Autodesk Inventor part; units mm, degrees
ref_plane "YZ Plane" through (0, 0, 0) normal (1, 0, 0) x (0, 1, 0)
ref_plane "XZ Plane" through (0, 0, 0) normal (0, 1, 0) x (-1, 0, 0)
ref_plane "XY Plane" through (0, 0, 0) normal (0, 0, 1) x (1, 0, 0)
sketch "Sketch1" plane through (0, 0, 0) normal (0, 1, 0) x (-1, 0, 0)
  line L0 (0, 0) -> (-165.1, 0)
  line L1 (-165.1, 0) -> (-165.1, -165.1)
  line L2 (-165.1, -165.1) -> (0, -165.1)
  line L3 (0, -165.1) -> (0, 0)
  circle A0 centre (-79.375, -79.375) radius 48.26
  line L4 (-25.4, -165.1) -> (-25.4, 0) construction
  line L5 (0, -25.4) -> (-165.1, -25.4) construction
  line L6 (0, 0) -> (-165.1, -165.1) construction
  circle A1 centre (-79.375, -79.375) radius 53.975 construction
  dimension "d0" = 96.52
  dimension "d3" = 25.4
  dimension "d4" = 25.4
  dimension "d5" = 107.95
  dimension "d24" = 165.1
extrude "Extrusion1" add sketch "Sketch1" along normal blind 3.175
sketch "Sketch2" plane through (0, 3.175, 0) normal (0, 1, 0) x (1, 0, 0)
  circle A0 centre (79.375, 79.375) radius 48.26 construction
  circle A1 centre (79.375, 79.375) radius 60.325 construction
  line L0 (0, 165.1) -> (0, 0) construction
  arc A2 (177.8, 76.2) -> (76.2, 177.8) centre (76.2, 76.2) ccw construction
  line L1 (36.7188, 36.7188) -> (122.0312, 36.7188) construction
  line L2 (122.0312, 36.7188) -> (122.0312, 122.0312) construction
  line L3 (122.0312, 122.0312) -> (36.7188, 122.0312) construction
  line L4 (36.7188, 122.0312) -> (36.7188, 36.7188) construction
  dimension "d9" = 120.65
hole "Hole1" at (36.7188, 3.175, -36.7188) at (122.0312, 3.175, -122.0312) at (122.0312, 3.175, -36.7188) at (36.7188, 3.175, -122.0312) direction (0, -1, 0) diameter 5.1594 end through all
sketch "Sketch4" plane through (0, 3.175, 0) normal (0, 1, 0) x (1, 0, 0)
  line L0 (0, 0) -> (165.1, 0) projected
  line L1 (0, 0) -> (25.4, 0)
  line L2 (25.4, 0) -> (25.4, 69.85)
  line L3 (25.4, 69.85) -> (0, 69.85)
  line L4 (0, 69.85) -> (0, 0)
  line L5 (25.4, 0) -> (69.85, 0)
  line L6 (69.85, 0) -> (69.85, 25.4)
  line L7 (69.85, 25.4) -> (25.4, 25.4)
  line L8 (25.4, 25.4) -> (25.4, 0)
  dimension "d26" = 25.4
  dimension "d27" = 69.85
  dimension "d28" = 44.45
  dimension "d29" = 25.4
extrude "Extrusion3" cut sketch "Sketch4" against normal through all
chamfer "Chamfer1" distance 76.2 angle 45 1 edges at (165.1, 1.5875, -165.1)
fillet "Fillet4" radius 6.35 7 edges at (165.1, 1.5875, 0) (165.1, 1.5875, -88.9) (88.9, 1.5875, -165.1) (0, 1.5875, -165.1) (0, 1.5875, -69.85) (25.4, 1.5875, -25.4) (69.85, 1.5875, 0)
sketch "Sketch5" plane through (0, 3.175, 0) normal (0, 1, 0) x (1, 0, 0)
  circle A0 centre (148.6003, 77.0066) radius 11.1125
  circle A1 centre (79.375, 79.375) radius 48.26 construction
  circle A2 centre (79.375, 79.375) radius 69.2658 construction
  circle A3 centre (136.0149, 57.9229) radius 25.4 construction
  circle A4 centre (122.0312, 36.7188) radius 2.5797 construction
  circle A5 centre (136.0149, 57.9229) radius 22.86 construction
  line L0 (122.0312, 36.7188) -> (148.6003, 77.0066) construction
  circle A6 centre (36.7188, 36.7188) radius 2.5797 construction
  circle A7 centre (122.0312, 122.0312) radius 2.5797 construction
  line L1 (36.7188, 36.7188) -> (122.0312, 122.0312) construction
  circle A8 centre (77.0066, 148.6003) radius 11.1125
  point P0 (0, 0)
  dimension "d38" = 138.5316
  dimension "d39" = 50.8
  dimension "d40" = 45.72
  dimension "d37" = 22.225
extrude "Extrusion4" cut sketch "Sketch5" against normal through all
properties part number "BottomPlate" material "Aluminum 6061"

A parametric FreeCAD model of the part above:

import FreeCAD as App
import Part
import Sketcher
from FreeCAD import Vector
Q = App.Units.Quantity


def edges_at(feature, points):
    """Names of the edges that pass closest to the given points."""
    edges = feature.Shape.Edges
    near = lambda p: min(range(len(edges)), key=lambda i: edges[i].distToShape(Part.Vertex(*p))[0])
    return sorted({f"Edge{near(p) + 1}" for p in points})


def add_polygon(sketch, points):
    """Adds a closed chain of lines whose ends are joined by coincident constraints."""
    first, n = sketch.GeometryCount, len(points)
    for a, b in zip(points, points[1:] + points[:1]):
        sketch.addGeometry(Part.LineSegment(App.Vector(*a, 0), App.Vector(*b, 0)), False)
    for i in range(n):
        sketch.addConstraint(Sketcher.Constraint("Coincident", first + i, 2, first + (i + 1) % n, 1))

doc = App.newDocument("Part")
body = doc.addObject("PartDesign::Body", "Body")

# Sketch on XZ plane
sketch1 = body.newObject("Sketcher::SketchObject", "Sketch")
sketch1.AttachmentSupport = (doc.getObject("XZ_Plane"), [""])
sketch1.MapMode = "FlatFace"
add_polygon(sketch1, [(0, -165), (0, 0), (165, 0), (165, -165)])  # lines 0-3
sketch1.addGeometry(Part.Circle(Vector(79, -79, 0), Vector(0, 0, 1), 48), False)  # 4
sketch1.addConstraint(Sketcher.Constraint("Vertical", 0))
sketch1.addConstraint(Sketcher.Constraint("Horizontal", 1))
sketch1.addConstraint(Sketcher.Constraint("Vertical", 2))
sketch1.addConstraint(Sketcher.Constraint("Horizontal", 3))
sketch1.addConstraint(Sketcher.Constraint("Coincident", 0, 2, -1, 1))
sketch1.addConstraint(Sketcher.Constraint("Equal", 3, 0))
sketch1.addConstraint(Sketcher.Constraint("Diameter", 4, Q("3.8 in")))
sketch1.addConstraint(Sketcher.Constraint("DistanceX", 1, 1, 1, 2, Q("6.5 in")))
sketch1.addConstraint(Sketcher.Constraint("DistanceX", -1, 1, 4, 3, Q("3.125 in")))
sketch1.addConstraint(Sketcher.Constraint("DistanceY", 4, 3, -1, 1, Q("3.125 in")))
pad1 = body.newObject("PartDesign::Pad", "Pad")
pad1.Profile = sketch1
pad1.Length = Q("0.125 in")
pad1.Reversed = True

# Sketch on XZ plane
sketch2 = body.newObject("Sketcher::SketchObject", "Sketch001")
sketch2.AttachmentSupport = (doc.getObject("XZ_Plane"), [""])
sketch2.MapMode = "FlatFace"
sketch2.AttachmentOffset = App.Placement(Vector(0, 0, -0.125 * 25.4), App.Rotation())
sketch2.addGeometry(Part.Circle(Vector(36.7, -36.7, 0), Vector(0, 0, 1), 2.6), False)
sketch2.addGeometry(Part.Circle(Vector(122, -122, 0), Vector(0, 0, 1), 2.6), False)
sketch2.addGeometry(Part.Circle(Vector(122, -36.7, 0), Vector(0, 0, 1), 2.6), False)
sketch2.addGeometry(Part.Circle(Vector(36.7, -122, 0), Vector(0, 0, 1), 2.6), False)
sketch2.addConstraint(Sketcher.Constraint("Equal", 0, 1))
sketch2.addConstraint(Sketcher.Constraint("Equal", 1, 2))
sketch2.addConstraint(Sketcher.Constraint("Equal", 2, 3))
sketch2.addConstraint(Sketcher.Constraint("Horizontal", 0, 3, 2, 3))
sketch2.addConstraint(Sketcher.Constraint("Horizontal", 1, 3, 3, 3))
sketch2.addConstraint(Sketcher.Constraint("Vertical", 1, 3, 2, 3))
sketch2.addConstraint(Sketcher.Constraint("Vertical", 0, 3, 3, 3))
sketch2.addConstraint(Sketcher.Constraint("Diameter", 0, Q("0.203126 in")))
sketch2.addConstraint(Sketcher.Constraint("DistanceX", -1, 1, 0, 3, 36.7188))
sketch2.addConstraint(Sketcher.Constraint("DistanceY", 0, 3, -1, 1, 36.7188))
sketch2.addConstraint(Sketcher.Constraint("DistanceX", -1, 1, 1, 3, 122.0312))
sketch2.addConstraint(Sketcher.Constraint("DistanceY", 1, 3, -1, 1, 122.0312))
doc.recompute()
hole = body.newObject("PartDesign::Hole", "Hole")
hole.Profile = sketch2
hole.ThreadType = "None"
hole.Diameter = Q("0.203126 in")
hole.DepthType = "ThroughAll"
hole.Reversed = True

# Sketch on XZ plane
sketch3 = body.newObject("Sketcher::SketchObject", "Sketch002")
sketch3.AttachmentSupport = (doc.getObject("XZ_Plane"), [""])
sketch3.MapMode = "FlatFace"
sketch3.AttachmentOffset = App.Placement(Vector(0, 0, -0.125 * 25.4), App.Rotation())
add_polygon(sketch3, [(0, -70), (0, 0), (70, 0), (70, -25), (25, -25), (25, -70)])  # lines 0-5
sketch3.addConstraint(Sketcher.Constraint("Vertical", 0))
sketch3.addConstraint(Sketcher.Constraint("Horizontal", 1))
sketch3.addConstraint(Sketcher.Constraint("Vertical", 2))
sketch3.addConstraint(Sketcher.Constraint("Horizontal", 3))
sketch3.addConstraint(Sketcher.Constraint("Vertical", 4))
sketch3.addConstraint(Sketcher.Constraint("Horizontal", 5))
sketch3.addConstraint(Sketcher.Constraint("Coincident", 0, 2, -1, 1))
sketch3.addConstraint(Sketcher.Constraint("Equal", 1, 0))
sketch3.addConstraint(Sketcher.Constraint("Equal", 5, 2))
sketch3.addConstraint(Sketcher.Constraint("DistanceX", 5, 2, 5, 1, Q("1 in")))
sketch3.addConstraint(Sketcher.Constraint("DistanceX", 1, 1, 1, 2, Q("2.75 in")))
pocket1 = body.newObject("PartDesign::Pocket", "Pocket")
pocket1.Profile = sketch3
pocket1.Type = "ThroughAll"
pocket1.Reversed = True
doc.recompute()

chamfer = body.newObject("PartDesign::Chamfer", "Chamfer")
chamfer.Base = (pocket1, edges_at(pocket1, [(165.1, 1.587, -165.1)]))
chamfer.Size = Q("3 in")
doc.recompute()

fillet = body.newObject("PartDesign::Fillet", "Fillet")
fillet.Base = (chamfer, edges_at(chamfer, [
    (165.1, 1.587, 0),
    (165.1, 1.587, -88.9),
    (88.9, 1.587, -165.1),
    (0, 1.587, -165.1),
    (0, 1.587, -69.85),
    (25.4, 1.587, -25.4),
    (69.85, 1.587, 0),
]))
fillet.Radius = Q("0.25 in")

# Sketch on XZ plane
sketch4 = body.newObject("Sketcher::SketchObject", "Sketch003")
sketch4.AttachmentSupport = (doc.getObject("XZ_Plane"), [""])
sketch4.MapMode = "FlatFace"
sketch4.AttachmentOffset = App.Placement(Vector(0, 0, -0.125 * 25.4), App.Rotation())
sketch4.addGeometry(Part.Circle(Vector(149, -77, 0), Vector(0, 0, 1), 11), False)
sketch4.addGeometry(Part.Circle(Vector(77, -149, 0), Vector(0, 0, 1), 11), False)
sketch4.addConstraint(Sketcher.Constraint("Equal", 0, 1))
sketch4.addConstraint(Sketcher.Constraint("Diameter", 0, Q("0.875 in")))
sketch4.addConstraint(Sketcher.Constraint("DistanceX", -1, 1, 0, 3, Q("5.8504 in")))
sketch4.addConstraint(Sketcher.Constraint("DistanceY", 1, 3, -1, 1, Q("5.8504 in")))
sketch4.addConstraint(Sketcher.Constraint("DistanceY", 0, 3, -1, 1, 77.0066))
sketch4.addConstraint(Sketcher.Constraint("DistanceX", -1, 1, 1, 3, 77.0066))
pocket2 = body.newObject("PartDesign::Pocket", "Pocket001")
pocket2.Profile = sketch4
pocket2.Type = "ThroughAll"
pocket2.Reversed = True

doc.recompute()
